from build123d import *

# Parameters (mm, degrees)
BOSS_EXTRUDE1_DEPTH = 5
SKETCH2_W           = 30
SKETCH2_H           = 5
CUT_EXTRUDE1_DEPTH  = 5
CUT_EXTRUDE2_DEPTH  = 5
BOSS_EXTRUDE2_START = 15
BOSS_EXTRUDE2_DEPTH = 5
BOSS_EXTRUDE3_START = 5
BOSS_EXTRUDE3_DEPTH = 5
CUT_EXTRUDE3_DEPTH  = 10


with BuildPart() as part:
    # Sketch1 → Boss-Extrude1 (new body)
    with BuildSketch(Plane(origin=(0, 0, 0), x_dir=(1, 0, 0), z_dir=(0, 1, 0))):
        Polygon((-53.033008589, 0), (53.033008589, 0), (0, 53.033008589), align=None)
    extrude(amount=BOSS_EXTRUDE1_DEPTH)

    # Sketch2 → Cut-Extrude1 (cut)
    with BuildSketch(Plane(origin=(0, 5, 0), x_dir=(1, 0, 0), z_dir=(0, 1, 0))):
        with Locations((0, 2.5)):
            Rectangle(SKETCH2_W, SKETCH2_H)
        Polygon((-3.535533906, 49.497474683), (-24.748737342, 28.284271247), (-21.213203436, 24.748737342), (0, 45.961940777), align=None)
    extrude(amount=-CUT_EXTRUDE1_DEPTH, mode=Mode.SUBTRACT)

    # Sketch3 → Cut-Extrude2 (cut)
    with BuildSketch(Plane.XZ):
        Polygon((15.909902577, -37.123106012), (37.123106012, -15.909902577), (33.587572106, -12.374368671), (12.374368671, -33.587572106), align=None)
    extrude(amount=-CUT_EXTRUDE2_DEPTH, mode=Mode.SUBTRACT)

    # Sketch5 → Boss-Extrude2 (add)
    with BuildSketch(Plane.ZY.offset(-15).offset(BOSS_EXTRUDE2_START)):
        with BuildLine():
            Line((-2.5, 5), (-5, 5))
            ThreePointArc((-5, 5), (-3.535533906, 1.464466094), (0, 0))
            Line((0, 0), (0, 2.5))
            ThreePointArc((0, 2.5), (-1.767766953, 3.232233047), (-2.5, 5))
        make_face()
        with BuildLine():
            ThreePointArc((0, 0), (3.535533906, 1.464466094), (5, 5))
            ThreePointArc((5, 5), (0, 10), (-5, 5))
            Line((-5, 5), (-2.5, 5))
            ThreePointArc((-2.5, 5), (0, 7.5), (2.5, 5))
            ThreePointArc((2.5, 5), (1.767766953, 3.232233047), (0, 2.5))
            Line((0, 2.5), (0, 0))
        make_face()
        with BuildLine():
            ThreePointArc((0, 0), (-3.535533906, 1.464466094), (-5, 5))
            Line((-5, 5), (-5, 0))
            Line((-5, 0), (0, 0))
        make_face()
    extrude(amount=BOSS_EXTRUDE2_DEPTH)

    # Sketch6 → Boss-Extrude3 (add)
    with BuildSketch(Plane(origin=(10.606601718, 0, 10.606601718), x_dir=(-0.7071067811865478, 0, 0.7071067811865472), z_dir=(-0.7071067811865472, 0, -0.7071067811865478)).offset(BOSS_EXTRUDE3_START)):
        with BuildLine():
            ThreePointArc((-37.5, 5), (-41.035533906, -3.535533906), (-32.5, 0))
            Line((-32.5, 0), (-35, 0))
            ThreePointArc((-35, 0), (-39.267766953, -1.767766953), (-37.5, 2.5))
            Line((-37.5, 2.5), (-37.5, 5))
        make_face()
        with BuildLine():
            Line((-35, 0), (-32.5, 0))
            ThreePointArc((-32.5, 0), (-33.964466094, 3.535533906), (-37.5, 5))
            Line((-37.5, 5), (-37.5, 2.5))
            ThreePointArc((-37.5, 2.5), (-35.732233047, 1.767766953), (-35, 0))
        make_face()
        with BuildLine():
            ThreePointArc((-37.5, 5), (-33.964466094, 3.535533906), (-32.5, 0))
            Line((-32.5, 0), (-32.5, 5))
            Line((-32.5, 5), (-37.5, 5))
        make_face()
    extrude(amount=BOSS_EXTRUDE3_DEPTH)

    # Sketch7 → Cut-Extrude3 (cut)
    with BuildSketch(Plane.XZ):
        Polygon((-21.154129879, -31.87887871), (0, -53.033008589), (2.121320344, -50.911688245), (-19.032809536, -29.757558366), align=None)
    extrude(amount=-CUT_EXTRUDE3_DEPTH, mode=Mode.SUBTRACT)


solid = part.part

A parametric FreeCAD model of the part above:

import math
import FreeCAD as App
import Part
import Sketcher
Q = App.Units.Quantity

doc = App.newDocument("Part")
params = doc.addObject("Spreadsheet::Sheet", "Params")
for row, (alias, value) in enumerate([
    ("sketch1_length", "75 mm"),
    ("pad1_length", "5 mm"),
    ("sketch2_width", "30 mm"),
    ("sketch2_height", "5 mm"),
    ("sketch2_length", "30 mm"),
    ("sketch2_length2", "5 mm"),
    ("pocket1_length", "5 mm"),
    ("sketch3_length", "30 mm"),
    ("sketch3_length2", "5 mm"),
    ("pocket2_length", "5 mm"),
    ("sketch4_radius", "5 mm"),
    ("sketch4_radius2", "2.5 mm"),
    ("pad2_length", "5 mm"),
    ("sketch5_radius", "5 mm"),
    ("sketch5_radius2", "2.5 mm"),
    ("pad3_length", "5 mm"),
    ("sketch6_length", "3 mm"),
    ("pocket3_length", "10 mm"),
], start=1):
    params.set(f"A{row}", alias)
    params.set(f"B{row}", "=" + value)
    params.setAlias(f"B{row}", alias)

body = doc.addObject("PartDesign::Body", "Body")

sketch1 = doc.addObject("Sketcher::SketchObject", "Sketch")
body.addObject(sketch1)
sketch1.AttachmentSupport = (doc.XZ_Plane, [""])
sketch1.MapMode = "FlatFace"
sketch1.addGeometry(Part.LineSegment(App.Vector(-53.033009, 0, 0), App.Vector(53.033009, 0, 0)), False)
sketch1.addGeometry(Part.LineSegment(App.Vector(53.033009, 0, 0), App.Vector(0, -53.033009, 0)), False)
sketch1.addGeometry(Part.LineSegment(App.Vector(0, -53.033009, 0), App.Vector(-53.033009, 0, 0)), False)
sketch1.addConstraint(Sketcher.Constraint("Coincident", 0, 2, 1, 1))
sketch1.addConstraint(Sketcher.Constraint("Coincident", 1, 2, 2, 1))
sketch1.addConstraint(Sketcher.Constraint("Coincident", 2, 2, 0, 1))
sketch1.addConstraint(Sketcher.Constraint("Horizontal", 0))
sketch1.addConstraint(Sketcher.Constraint("Symmetric", 0, 2, 2, 2, -1, 1))
sketch1.addConstraint(Sketcher.Constraint("PointOnObject", 1, 2, -2))
sketch1.addConstraint(Sketcher.Constraint("Perpendicular", 1, 2))
sketch1.addConstraint(Sketcher.Constraint("Distance", 1, 75.0))
sketch1.setExpression("Constraints[7]", "Params.sketch1_length")
pad1 = doc.addObject("PartDesign::Pad", "Pad")
body.addObject(pad1)
pad1.Profile = sketch1
pad1.setExpression("Length", "Params.pad1_length")
pad1.Reversed = True

sketch2 = doc.addObject("Sketcher::SketchObject", "Sketch001")
body.addObject(sketch2)
sketch2.AttachmentSupport = (doc.XZ_Plane, [""])
sketch2.MapMode = "FlatFace"
sketch2.AttachmentOffset = App.Placement(App.Vector(0, 0, -5), App.Rotation())
sketch2.addGeometry(Part.LineSegment(App.Vector(-15, -5, 0), App.Vector(-15, 0, 0)), False)
sketch2.addGeometry(Part.LineSegment(App.Vector(-15, 0, 0), App.Vector(15, 0, 0)), False)
sketch2.addGeometry(Part.LineSegment(App.Vector(15, 0, 0), App.Vector(15, -5, 0)), False)
sketch2.addGeometry(Part.LineSegment(App.Vector(15, -5, 0), App.Vector(-15, -5, 0)), False)
sketch2.addGeometry(Part.LineSegment(App.Vector(-3.535534, -49.497475, 0), App.Vector(-24.748737, -28.284271, 0)), False)
sketch2.addGeometry(Part.LineSegment(App.Vector(-24.748737, -28.284271, 0), App.Vector(-21.213203, -24.748737, 0)), False)
sketch2.addGeometry(Part.LineSegment(App.Vector(-21.213203, -24.748737, 0), App.Vector(0, -45.961941, 0)), False)
sketch2.addGeometry(Part.LineSegment(App.Vector(0, -45.961941, 0), App.Vector(-3.535534, -49.497475, 0)), False)
sketch2.addConstraint(Sketcher.Constraint("Coincident", 0, 2, 1, 1))
sketch2.addConstraint(Sketcher.Constraint("Coincident", 1, 2, 2, 1))
sketch2.addConstraint(Sketcher.Constraint("Coincident", 2, 2, 3, 1))
sketch2.addConstraint(Sketcher.Constraint("Coincident", 3, 2, 0, 1))
sketch2.addConstraint(Sketcher.Constraint("Coincident", 4, 2, 5, 1))
sketch2.addConstraint(Sketcher.Constraint("Coincident", 5, 2, 6, 1))
sketch2.addConstraint(Sketcher.Constraint("Coincident", 6, 2, 7, 1))
sketch2.addConstraint(Sketcher.Constraint("Coincident", 7, 2, 4, 1))
sketch2.addConstraint(Sketcher.Constraint("Vertical", 0))
sketch2.addConstraint(Sketcher.Constraint("Horizontal", 1))
sketch2.addConstraint(Sketcher.Constraint("Vertical", 2))
sketch2.addConstraint(Sketcher.Constraint("Horizontal", 3))
sketch2.addConstraint(Sketcher.Constraint("Symmetric", 0, 2, 1, 2, -1, 1))
sketch2.addConstraint(Sketcher.Constraint("PointOnObject", 6, 2, -2))
sketch2.addConstraint(Sketcher.Constraint("Perpendicular", 4, 5))
sketch2.addConstraint(Sketcher.Constraint("Perpendicular", 5, 6))
sketch2.addConstraint(Sketcher.Constraint("Perpendicular", 6, 7))
sketch2.addConstraint(Sketcher.Constraint("DistanceX", 1, 1, 1, 2, 30.0))
sketch2.addConstraint(Sketcher.Constraint("DistanceY", 0, 1, 0, 2, 5.0))
sketch2.addConstraint(Sketcher.Constraint("Angle", 4, Q("135 deg")))
sketch2.addConstraint(Sketcher.Constraint("Distance", 4, 30.0))
sketch2.addConstraint(Sketcher.Constraint("Distance", 5, 5.0))
sketch2.addConstraint(Sketcher.Constraint("DistanceY", 4, 2, -1, 1, 28.284271))
sketch2.setExpression("Constraints[17]", "Params.sketch2_width")
sketch2.setExpression("Constraints[18]", "Params.sketch2_height")
sketch2.setExpression("Constraints[20]", "Params.sketch2_length")
sketch2.setExpression("Constraints[21]", "Params.sketch2_length2")
pocket1 = doc.addObject("PartDesign::Pocket", "Pocket")
body.addObject(pocket1)
pocket1.Profile = sketch2
pocket1.setExpression("Length", "Params.pocket1_length")
pocket1.Reversed = True

sketch3 = doc.addObject("Sketcher::SketchObject", "Sketch002")
body.addObject(sketch3)
sketch3.AttachmentSupport = (doc.XZ_Plane, [""])
sketch3.MapMode = "FlatFace"
sketch3.addGeometry(Part.LineSegment(App.Vector(15.909903, -37.123106, 0), App.Vector(37.123106, -15.909903, 0)), False)
sketch3.addGeometry(Part.LineSegment(App.Vector(37.123106, -15.909903, 0), App.Vector(33.587572, -12.374369, 0)), False)
sketch3.addGeometry(Part.LineSegment(App.Vector(33.587572, -12.374369, 0), App.Vector(12.374369, -33.587572, 0)), False)
sketch3.addGeometry(Part.LineSegment(App.Vector(12.374369, -33.587572, 0), App.Vector(15.909903, -37.123106, 0)), False)
sketch3.addConstraint(Sketcher.Constraint("Coincident", 0, 2, 1, 1))
sketch3.addConstraint(Sketcher.Constraint("Coincident", 1, 2, 2, 1))
sketch3.addConstraint(Sketcher.Constraint("Coincident", 2, 2, 3, 1))
sketch3.addConstraint(Sketcher.Constraint("Coincident", 3, 2, 0, 1))
sketch3.addConstraint(Sketcher.Constraint("Perpendicular", 0, 1))
sketch3.addConstraint(Sketcher.Constraint("Perpendicular", 1, 2))
sketch3.addConstraint(Sketcher.Constraint("Perpendicular", 2, 3))
sketch3.addConstraint(Sketcher.Constraint("Angle", 0, Q("45 deg")))
sketch3.addConstraint(Sketcher.Constraint("Distance", 0, 30.0))
sketch3.addConstraint(Sketcher.Constraint("Distance", 1, 5.0))
sketch3.addConstraint(Sketcher.Constraint("DistanceY", 1, 2, -1, 1, 12.374369))
sketch3.addConstraint(Sketcher.Constraint("DistanceX", -1, 1, 2, 2, 12.374369))
sketch3.setExpression("Constraints[8]", "Params.sketch3_length")
sketch3.setExpression("Constraints[9]", "Params.sketch3_length2")
pocket2 = doc.addObject("PartDesign::Pocket", "Pocket001")
body.addObject(pocket2)
pocket2.Profile = sketch3
pocket2.setExpression("Length", "Params.pocket2_length")

sketch4 = doc.addObject("Sketcher::SketchObject", "Sketch003")
body.addObject(sketch4)
sketch4.AttachmentSupport = (doc.YZ_Plane, [""])
sketch4.MapMode = "FlatFace"
sketch4.addGeometry(Part.ArcOfCircle(Part.Circle(App.Vector(5, 0, 0), App.Vector(0, 0, 1), 5), math.radians(90), math.radians(180)), False)
sketch4.addGeometry(Part.ArcOfCircle(Part.Circle(App.Vector(5, 0, 0), App.Vector(0, 0, 1), 5), math.radians(-90), math.radians(90)), False)
sketch4.addGeometry(Part.LineSegment(App.Vector(5, -5, 0), App.Vector(0, -5, 0)), False)
sketch4.addGeometry(Part.LineSegment(App.Vector(0, -5, 0), App.Vector(0, 0, 0)), False)
sketch4.addGeometry(Part.ArcOfCircle(Part.Circle(App.Vector(5, 0, 0), App.Vector(0, 0, 1), 2.5), math.radians(180), math.radians(270)), False)
sketch4.addGeometry(Part.ArcOfCircle(Part.Circle(App.Vector(5, 0, 0), App.Vector(0, 0, 1), 2.5), math.radians(-90), math.radians(90)), False)
sketch4.addGeometry(Part.ArcOfCircle(Part.Circle(App.Vector(5, 0, 0), App.Vector(0, 0, 1), 2.5), math.radians(90), math.radians(180)), False)
sketch4.addConstraint(Sketcher.Constraint("Tangent", 0, 1, 1, 2))
sketch4.addConstraint(Sketcher.Constraint("Tangent", 1, 1, 2, 1))
sketch4.addConstraint(Sketcher.Constraint("Coincident", 2, 2, 3, 1))
sketch4.addConstraint(Sketcher.Constraint("Tangent", 3, 2, 0, 2))
sketch4.addConstraint(Sketcher.Constraint("Tangent", 4, 2, 5, 1))
sketch4.addConstraint(Sketcher.Constraint("Tangent", 5, 2, 6, 1))
sketch4.addConstraint(Sketcher.Constraint("Tangent", 6, 2, 4, 1))
sketch4.addConstraint(Sketcher.Constraint("Horizontal", 2))
sketch4.addConstraint(Sketcher.Constraint("Vertical", 3))
sketch4.addConstraint(Sketcher.Constraint("Coincident", 3, 2, -1, 1))
sketch4.addConstraint(Sketcher.Constraint("Coincident", 4, 3, 0, 3))
sketch4.addConstraint(Sketcher.Constraint("Equal", 0, 1))
sketch4.addConstraint(Sketcher.Constraint("PointOnObject", 6, 2, -1))
sketch4.addConstraint(Sketcher.Constraint("Vertical", 6, 3, 0, 1))
sketch4.addConstraint(Sketcher.Constraint("Vertical", 1, 1, 4, 2))
sketch4.addConstraint(Sketcher.Constraint("Vertical", 4, 2, 5, 2))
sketch4.addConstraint(Sketcher.Constraint("Radius", 0, 5.0))
sketch4.addConstraint(Sketcher.Constraint("Radius", 4, 2.5))
sketch4.setExpression("Constraints[16]", "Params.sketch4_radius")
sketch4.setExpression("Constraints[17]", "Params.sketch4_radius2")
pad2 = doc.addObject("PartDesign::Pad", "Pad001")
body.addObject(pad2)
pad2.Profile = sketch4
pad2.setExpression("Length", "Params.pad2_length")
pad2.Reversed = True

sketch5 = doc.addObject("Sketcher::SketchObject", "Sketch004")
body.addObject(sketch5)
sketch5.Placement = App.Placement(App.Vector(7.071068, 0, 7.071068), App.Rotation(App.Vector(-0.707106781, 0, 0.707106781), App.Vector(0, 0.999999999, 0), App.Vector(-0.707106781, 0, -0.707106781), "ZXY"))
sketch5.addGeometry(Part.ArcOfCircle(Part.Circle(App.Vector(-37.5, 0, 0), App.Vector(0, 0, 1), 5), math.radians(90), math.radians(360)), False)
sketch5.addGeometry(Part.LineSegment(App.Vector(-32.5, 0, 0), App.Vector(-32.5, 5, 0)), False)
sketch5.addGeometry(Part.LineSegment(App.Vector(-32.5, 5, 0), App.Vector(-37.5, 5, 0)), False)
sketch5.addGeometry(Part.ArcOfCircle(Part.Circle(App.Vector(-37.5, 0, 0), App.Vector(0, 0, 1), 2.5), math.radians(90), math.radians(360)), False)
sketch5.addGeometry(Part.ArcOfCircle(Part.Circle(App.Vector(-37.5, 0, 0), App.Vector(0, 0, 1), 2.5), math.radians(0), math.radians(90)), False)
sketch5.addConstraint(Sketcher.Constraint("Tangent", 0, 2, 1, 1))
sketch5.addConstraint(Sketcher.Constraint("Coincident", 1, 2, 2, 1))
sketch5.addConstraint(Sketcher.Constraint("Tangent", 2, 2, 0, 1))
sketch5.addConstraint(Sketcher.Constraint("Tangent", 3, 1, 4, 2))
sketch5.addConstraint(Sketcher.Constraint("Coincident", 4, 1, 3, 2))
sketch5.addConstraint(Sketcher.Constraint("Vertical", 1))
sketch5.addConstraint(Sketcher.Constraint("Horizontal", 2))
sketch5.addConstraint(Sketcher.Constraint("Coincident", 3, 3, 0, 3))
sketch5.addConstraint(Sketcher.Constraint("PointOnObject", 0, 3, -1))
sketch5.addConstraint(Sketcher.Constraint("PointOnObject", 4, 1, -1))
sketch5.addConstraint(Sketcher.Constraint("Vertical", 2, 2, 3, 1))
sketch5.addConstraint(Sketcher.Constraint("Radius", 0, 5.0))
sketch5.addConstraint(Sketcher.Constraint("Radius", 3, 2.5))
sketch5.addConstraint(Sketcher.Constraint("DistanceX", 4, 1, -1, 1, 35.0))
sketch5.setExpression("Constraints[11]", "Params.sketch5_radius")
sketch5.setExpression("Constraints[12]", "Params.sketch5_radius2")
pad3 = doc.addObject("PartDesign::Pad", "Pad002")
body.addObject(pad3)
pad3.Profile = sketch5
pad3.setExpression("Length", "Params.pad3_length")

sketch6 = doc.addObject("Sketcher::SketchObject", "Sketch005")
body.addObject(sketch6)
sketch6.AttachmentSupport = (doc.XZ_Plane, [""])
sketch6.MapMode = "FlatFace"
sketch6.addGeometry(Part.LineSegment(App.Vector(-21.15413, -31.878879, 0), App.Vector(0, -53.033009, 0)), False)
sketch6.addGeometry(Part.LineSegment(App.Vector(0, -53.033009, 0), App.Vector(2.12132, -50.911688, 0)), False)
sketch6.addGeometry(Part.LineSegment(App.Vector(2.12132, -50.911688, 0), App.Vector(-19.03281, -29.757558, 0)), False)
sketch6.addGeometry(Part.LineSegment(App.Vector(-19.03281, -29.757558, 0), App.Vector(-21.15413, -31.878879, 0)), False)
sketch6.addConstraint(Sketcher.Constraint("Coincident", 0, 2, 1, 1))
sketch6.addConstraint(Sketcher.Constraint("Coincident", 1, 2, 2, 1))
sketch6.addConstraint(Sketcher.Constraint("Coincident", 2, 2, 3, 1))
sketch6.addConstraint(Sketcher.Constraint("Coincident", 3, 2, 0, 1))
sketch6.addConstraint(Sketcher.Constraint("PointOnObject", 0, 2, -2))
sketch6.addConstraint(Sketcher.Constraint("Perpendicular", 0, 1))
sketch6.addConstraint(Sketcher.Constraint("Perpendicular", 1, 2))
sketch6.addConstraint(Sketcher.Constraint("Perpendicular", 2, 3))
sketch6.addConstraint(Sketcher.Constraint("Angle", 0, Q("-45 deg")))
sketch6.addConstraint(Sketcher.Constraint("Distance", 1, 3.0))
sketch6.addConstraint(Sketcher.Constraint("DistanceY", 0, 2, -1, 1, 53.033009))
sketch6.addConstraint(Sketcher.Constraint("DistanceX", 2, 2, -1, 1, 19.03281))
sketch6.setExpression("Constraints[9]", "Params.sketch6_length")
pocket3 = doc.addObject("PartDesign::Pocket", "Pocket002")
body.addObject(pocket3)
pocket3.Profile = sketch6
pocket3.setExpression("Length", "Params.pocket3_length")

doc.recompute()
